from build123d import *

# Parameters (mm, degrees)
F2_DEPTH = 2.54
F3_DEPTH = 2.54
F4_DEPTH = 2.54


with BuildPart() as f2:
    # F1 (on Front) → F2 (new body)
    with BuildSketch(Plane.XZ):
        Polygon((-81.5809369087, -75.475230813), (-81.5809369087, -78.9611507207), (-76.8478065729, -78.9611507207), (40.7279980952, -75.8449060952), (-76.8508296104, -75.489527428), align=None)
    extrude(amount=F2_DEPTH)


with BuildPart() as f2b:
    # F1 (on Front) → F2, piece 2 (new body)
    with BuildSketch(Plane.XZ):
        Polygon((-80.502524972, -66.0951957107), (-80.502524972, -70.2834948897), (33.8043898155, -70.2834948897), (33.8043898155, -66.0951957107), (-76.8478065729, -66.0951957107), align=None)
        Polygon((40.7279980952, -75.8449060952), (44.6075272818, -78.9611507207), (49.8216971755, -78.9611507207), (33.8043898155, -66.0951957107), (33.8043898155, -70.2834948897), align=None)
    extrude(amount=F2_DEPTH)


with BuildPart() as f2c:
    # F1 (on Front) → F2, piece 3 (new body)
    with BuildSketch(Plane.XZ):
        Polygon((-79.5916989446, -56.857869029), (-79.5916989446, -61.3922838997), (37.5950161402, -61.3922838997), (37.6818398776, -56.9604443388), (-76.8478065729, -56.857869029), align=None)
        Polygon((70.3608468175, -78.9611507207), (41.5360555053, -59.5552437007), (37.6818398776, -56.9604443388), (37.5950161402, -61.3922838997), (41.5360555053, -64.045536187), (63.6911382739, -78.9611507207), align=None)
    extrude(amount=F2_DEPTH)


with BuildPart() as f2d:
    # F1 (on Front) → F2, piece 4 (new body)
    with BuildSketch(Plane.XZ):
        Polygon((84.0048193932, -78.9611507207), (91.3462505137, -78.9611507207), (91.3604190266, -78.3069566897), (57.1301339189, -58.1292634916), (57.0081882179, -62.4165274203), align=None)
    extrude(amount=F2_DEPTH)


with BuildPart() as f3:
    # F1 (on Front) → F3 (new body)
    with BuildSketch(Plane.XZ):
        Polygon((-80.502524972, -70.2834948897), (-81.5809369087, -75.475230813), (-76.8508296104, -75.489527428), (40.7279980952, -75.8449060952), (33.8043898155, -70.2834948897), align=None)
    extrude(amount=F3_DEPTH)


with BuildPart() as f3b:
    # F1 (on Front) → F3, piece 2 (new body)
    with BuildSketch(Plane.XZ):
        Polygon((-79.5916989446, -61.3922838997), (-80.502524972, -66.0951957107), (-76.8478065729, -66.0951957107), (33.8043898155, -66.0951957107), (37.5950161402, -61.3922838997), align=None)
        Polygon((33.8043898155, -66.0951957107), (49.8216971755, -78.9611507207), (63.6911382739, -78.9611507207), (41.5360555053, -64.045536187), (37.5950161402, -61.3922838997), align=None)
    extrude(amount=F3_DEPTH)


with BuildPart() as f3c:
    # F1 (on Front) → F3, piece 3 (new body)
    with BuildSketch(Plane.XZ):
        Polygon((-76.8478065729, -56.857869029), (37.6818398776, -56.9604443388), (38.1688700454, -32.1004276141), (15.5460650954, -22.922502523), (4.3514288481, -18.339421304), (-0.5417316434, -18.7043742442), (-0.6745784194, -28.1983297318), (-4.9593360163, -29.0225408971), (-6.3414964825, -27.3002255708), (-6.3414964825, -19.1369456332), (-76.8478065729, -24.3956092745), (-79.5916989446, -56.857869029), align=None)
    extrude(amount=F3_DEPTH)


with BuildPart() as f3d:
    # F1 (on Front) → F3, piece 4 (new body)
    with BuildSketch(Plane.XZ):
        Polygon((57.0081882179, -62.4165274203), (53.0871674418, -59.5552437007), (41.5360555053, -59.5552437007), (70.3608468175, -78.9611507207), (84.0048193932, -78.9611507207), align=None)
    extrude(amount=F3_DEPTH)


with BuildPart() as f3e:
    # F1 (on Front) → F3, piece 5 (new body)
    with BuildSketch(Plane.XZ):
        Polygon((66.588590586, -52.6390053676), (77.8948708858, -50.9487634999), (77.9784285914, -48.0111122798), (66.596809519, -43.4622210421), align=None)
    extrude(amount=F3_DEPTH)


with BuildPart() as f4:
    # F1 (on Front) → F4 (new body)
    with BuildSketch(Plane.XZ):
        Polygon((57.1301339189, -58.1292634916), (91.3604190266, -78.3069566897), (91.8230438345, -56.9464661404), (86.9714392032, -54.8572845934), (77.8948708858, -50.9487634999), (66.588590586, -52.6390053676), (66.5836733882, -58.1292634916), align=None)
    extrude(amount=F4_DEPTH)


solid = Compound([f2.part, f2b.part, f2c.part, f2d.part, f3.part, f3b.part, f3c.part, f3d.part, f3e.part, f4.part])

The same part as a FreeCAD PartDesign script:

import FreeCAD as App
import Part
import Sketcher
Q = App.Units.Quantity


def add_polygon(sketch, points):
    """Adds a closed chain of lines whose ends are joined by coincident constraints."""
    first, n = sketch.GeometryCount, len(points)
    for a, b in zip(points, points[1:] + points[:1]):
        sketch.addGeometry(Part.LineSegment(App.Vector(*a, 0), App.Vector(*b, 0)), False)
    for i in range(n):
        sketch.addConstraint(Sketcher.Constraint("Coincident", first + i, 2, first + (i + 1) % n, 1))

doc = App.newDocument("Part")
body = doc.addObject("PartDesign::Body", "Body")

sketch1 = body.newObject("Sketcher::SketchObject", "Sketch")
sketch1.AttachmentSupport = (doc.getObject("XZ_Plane"), [""])
sketch1.MapMode = "FlatFace"
add_polygon(sketch1, [(-81.6, -75.5), (-81.6, -79), (-76.8, -79), (40.7, -75.8), (-76.9, -75.5)])
sketch1.addConstraint(Sketcher.Constraint("Vertical", 0))
sketch1.addConstraint(Sketcher.Constraint("Horizontal", 1))
sketch1.addConstraint(Sketcher.Constraint("Parallel", 3, 4))
sketch1.addConstraint(Sketcher.Constraint("DistanceX", 1, 1, 1, 2, 4.73313))
sketch1.addConstraint(Sketcher.Constraint("DistanceY", 0, 2, 0, 1, 3.48592))
sketch1.addConstraint(Sketcher.Constraint("DistanceX", -1, 1, 2, 2, 40.727998))
sketch1.addConstraint(Sketcher.Constraint("Distance", 4, 4.730129))
sketch1.addConstraint(Sketcher.Constraint("DistanceY", 0, 2, -1, 1, 78.961151))
sketch1.addConstraint(Sketcher.Constraint("DistanceX", 3, 2, -1, 1, 76.85083))
sketch1.addConstraint(Sketcher.Constraint("DistanceY", 2, 2, 3, 2, 0.355379))
pad1 = body.newObject("PartDesign::Pad", "Pad")
pad1.Profile = sketch1
pad1.Length = Q("0.1 in")
body2 = doc.addObject("PartDesign::Body", "Body001")

sketch2 = body2.newObject("Sketcher::SketchObject", "Sketch001")
sketch2.AttachmentSupport = (doc.getObject("XZ_Plane001"), [""])
sketch2.MapMode = "FlatFace"
add_polygon(sketch2, [(-80.5, -66.1), (-80.5, -70.3), (33.8, -70.3), (40.7, -75.8), (44.6, -79), (49.8, -79), (33.8, -66.1)])
sketch2.addConstraint(Sketcher.Constraint("Vertical", 0))
sketch2.addConstraint(Sketcher.Constraint("Horizontal", 1))
sketch2.addConstraint(Sketcher.Constraint("Horizontal", 4))
sketch2.addConstraint(Sketcher.Constraint("Horizontal", 6))
sketch2.addConstraint(Sketcher.Constraint("Parallel", 2, 3))
sketch2.addConstraint(Sketcher.Constraint("Parallel", 3, 5))
sketch2.addConstraint(Sketcher.Constraint("Vertical", 1, 2, 5, 2))
sketch2.addConstraint(Sketcher.Constraint("DistanceY", 0, 2, 0, 1, 4.188299))
sketch2.addConstraint(Sketcher.Constraint("DistanceX", 4, 1, 4, 2, 5.21417))
sketch2.addConstraint(Sketcher.Constraint("DistanceX", -1, 1, 2, 2, 40.727998))
sketch2.addConstraint(Sketcher.Constraint("DistanceX", 2, 2, 4, 2, 9.093699))
sketch2.addConstraint(Sketcher.Constraint("DistanceX", 1, 1, 1, 2, 114.306915))
sketch2.addConstraint(Sketcher.Constraint("DistanceX", -1, 1, 1, 2, 33.80439))
sketch2.addConstraint(Sketcher.Constraint("DistanceY", 3, 2, -1, 1, 78.961151))
pad2 = body2.newObject("PartDesign::Pad", "Pad001")
pad2.Profile = sketch2
pad2.Length = Q("0.1 in")
body3 = doc.addObject("PartDesign::Body", "Body002")

sketch3 = body3.newObject("Sketcher::SketchObject", "Sketch002")
sketch3.AttachmentSupport = (doc.getObject("XZ_Plane002"), [""])
sketch3.MapMode = "FlatFace"
add_polygon(sketch3, [(-79.6, -56.9), (-79.6, -61.4), (37.6, -61.4), (41.5, -64), (63.7, -79), (70.4, -79), (41.5, -59.6), (37.7, -57), (-76.8, -56.9)])
sketch3.addConstraint(Sketcher.Constraint("Vertical", 0))
sketch3.addConstraint(Sketcher.Constraint("Horizontal", 1))
sketch3.addConstraint(Sketcher.Constraint("Horizontal", 4))
sketch3.addConstraint(Sketcher.Constraint("Horizontal", 8))
sketch3.addConstraint(Sketcher.Constraint("Parallel", 2, 3))
sketch3.addConstraint(Sketcher.Constraint("Parallel", 3, 5))
sketch3.addConstraint(Sketcher.Constraint("Parallel", 5, 6))
sketch3.addConstraint(Sketcher.Constraint("Vertical", 2, 2, 5, 2))
sketch3.addConstraint(Sketcher.Constraint("DistanceX", 4, 1, 4, 2, 6.669709))
sketch3.addConstraint(Sketcher.Constraint("DistanceX", 0, 2, -1, 1, 79.591699))
sketch3.addConstraint(Sketcher.Constraint("DistanceY", 5, 2, 6, 2, 2.594799))
sketch3.addConstraint(Sketcher.Constraint("DistanceX", 6, 2, 3, 2, 26.009298))
sketch3.addConstraint(Sketcher.Constraint("Distance", 2, 4.750951))
sketch3.addConstraint(Sketcher.Constraint("DistanceX", 1, 1, 1, 2, 117.186715))
sketch3.addConstraint(Sketcher.Constraint("DistanceX", 8, 2, 8, 1, 2.743892))
sketch3.addConstraint(Sketcher.Constraint("DistanceY", 0, 2, 0, 1, 4.534415))
sketch3.addConstraint(Sketcher.Constraint("DistanceX", -1, 1, 3, 2, 63.691138))
sketch3.addConstraint(Sketcher.Constraint("DistanceY", 3, 2, -1, 1, 78.961151))
pad3 = body3.newObject("PartDesign::Pad", "Pad002")
pad3.Profile = sketch3
pad3.Length = Q("0.1 in")
body4 = doc.addObject("PartDesign::Body", "Body003")

sketch4 = body4.newObject("Sketcher::SketchObject", "Sketch003")
sketch4.AttachmentSupport = (doc.getObject("XZ_Plane003"), [""])
sketch4.MapMode = "FlatFace"
add_polygon(sketch4, [(84, -79), (91.3, -79), (91.4, -78.3), (57.1, -58.1), (57, -62.4)])
sketch4.addConstraint(Sketcher.Constraint("Horizontal", 0))
sketch4.addConstraint(Sketcher.Constraint("DistanceX", 0, 1, 0, 2, 7.341431))
sketch4.addConstraint(Sketcher.Constraint("DistanceX", 4, 2, 1, 2, 7.3556))
sketch4.addConstraint(Sketcher.Constraint("DistanceX", -1, 1, 0, 2, 91.346251))
sketch4.addConstraint(Sketcher.Constraint("DistanceY", 0, 2, -1, 1, 78.961151))
sketch4.addConstraint(Sketcher.Constraint("DistanceX", -1, 1, 3, 2, 57.008188))
sketch4.addConstraint(Sketcher.Constraint("DistanceY", 1, 2, 3, 2, 15.890429))
sketch4.addConstraint(Sketcher.Constraint("Distance", 1, 0.654347))
sketch4.addConstraint(Sketcher.Constraint("Distance", 2, 39.734767))
sketch4.addConstraint(Sketcher.Constraint("Distance", 3, 4.288998))
pad4 = body4.newObject("PartDesign::Pad", "Pad003")
pad4.Profile = sketch4
pad4.Length = Q("0.1 in")
body5 = doc.addObject("PartDesign::Body", "Body004")

sketch5 = body5.newObject("Sketcher::SketchObject", "Sketch004")
sketch5.AttachmentSupport = (doc.getObject("XZ_Plane004"), [""])
sketch5.MapMode = "FlatFace"
add_polygon(sketch5, [(-80.5, -70.3), (-81.6, -75.5), (-76.9, -75.5), (40.7, -75.8), (33.8, -70.3)])
sketch5.addConstraint(Sketcher.Constraint("Horizontal", 4))
sketch5.addConstraint(Sketcher.Constraint("Parallel", 1, 2))
sketch5.addConstraint(Sketcher.Constraint("DistanceX", -1, 1, 2, 2, 40.727998))
sketch5.addConstraint(Sketcher.Constraint("Distance", 1, 4.730129))
sketch5.addConstraint(Sketcher.Constraint("DistanceX", 4, 2, 4, 1, 114.306915))
sketch5.addConstraint(Sketcher.Constraint("DistanceY", 0, 2, -1, 1, 75.475231))
sketch5.addConstraint(Sketcher.Constraint("DistanceX", 1, 2, -1, 1, 76.85083))
sketch5.addConstraint(Sketcher.Constraint("DistanceX", -1, 1, 3, 2, 33.80439))
sketch5.addConstraint(Sketcher.Constraint("DistanceY", 2, 2, 1, 2, 0.355379))
sketch5.addConstraint(Sketcher.Constraint("DistanceY", 2, 2, 3, 2, 5.561411))
pad5 = body5.newObject("PartDesign::Pad", "Pad004")
pad5.Profile = sketch5
pad5.Length = Q("0.1 in")
body6 = doc.addObject("PartDesign::Body", "Body005")

sketch6 = body6.newObject("Sketcher::SketchObject", "Sketch005")
sketch6.AttachmentSupport = (doc.getObject("XZ_Plane005"), [""])
sketch6.MapMode = "FlatFace"
add_polygon(sketch6, [(-79.6, -61.4), (-80.5, -66.1), (33.8, -66.1), (49.8, -79), (63.7, -79), (41.5, -64), (37.6, -61.4)])
sketch6.addConstraint(Sketcher.Constraint("Horizontal", 1))
sketch6.addConstraint(Sketcher.Constraint("Horizontal", 3))
sketch6.addConstraint(Sketcher.Constraint("Horizontal", 6))
sketch6.addConstraint(Sketcher.Constraint("Parallel", 4, 5))
sketch6.addConstraint(Sketcher.Constraint("Distance", 0, 4.790301))
sketch6.addConstraint(Sketcher.Constraint("DistanceX", 3, 1, 3, 2, 13.869441))
sketch6.addConstraint(Sketcher.Constraint("DistanceX", 6, 2, -1, 1, 79.591699))
sketch6.addConstraint(Sketcher.Constraint("Distance", 5, 4.750951))
sketch6.addConstraint(Sketcher.Constraint("DistanceX", 1, 1, 1, 2, 114.306915))
sketch6.addConstraint(Sketcher.Constraint("DistanceX", 6, 2, 6, 1, 117.186715))
sketch6.addConstraint(Sketcher.Constraint("DistanceX", -1, 1, 1, 2, 33.80439))
sketch6.addConstraint(Sketcher.Constraint("DistanceY", 2, 2, -1, 1, 78.961151))
sketch6.addConstraint(Sketcher.Constraint("DistanceX", -1, 1, 3, 2, 63.691138))
sketch6.addConstraint(Sketcher.Constraint("DistanceY", 1, 2, 4, 2, 2.04966))
pad6 = body6.newObject("PartDesign::Pad", "Pad005")
pad6.Profile = sketch6
pad6.Length = Q("0.1 in")
body7 = doc.addObject("PartDesign::Body", "Body006")

sketch7 = body7.newObject("Sketcher::SketchObject", "Sketch006")
sketch7.AttachmentSupport = (doc.getObject("XZ_Plane006"), [""])
sketch7.MapMode = "FlatFace"
add_polygon(sketch7, [(-76.847807, -56.857869), (37.68184, -56.960444), (38.16887, -32.100428), (15.546065, -22.922503), (4.351429, -18.339421), (-0.541732, -18.704374), (-0.674578, -28.19833), (-4.959336, -29.022541), (-6.341496, -27.300226), (-6.341496, -19.136946), (-76.847807, -24.395609), (-79.591699, -56.857869)])
sketch7.addConstraint(Sketcher.Constraint("Vertical", 8))
sketch7.addConstraint(Sketcher.Constraint("Horizontal", 11))
sketch7.addConstraint(Sketcher.Constraint("DistanceY", 8, 1, 8, 2, 8.16328))
sketch7.addConstraint(Sketcher.Constraint("DistanceX", 10, 2, -1, 1, 79.591699))
sketch7.addConstraint(Sketcher.Constraint("DistanceX", 4, 2, 1, 2, 38.710602))
sketch7.addConstraint(Sketcher.Constraint("DistanceX", 6, 2, 2, 2, 20.505401))
sketch7.addConstraint(Sketcher.Constraint("Distance", 4, 4.906751))
sketch7.addConstraint(Sketcher.Constraint("Distance", 6, 4.36331))
sketch7.addConstraint(Sketcher.Constraint("DistanceX", 11, 1, 11, 2, 2.743892))
sketch7.addConstraint(Sketcher.Constraint("DistanceX", -1, 1, 0, 2, 37.68184))
sketch7.addConstraint(Sketcher.Constraint("DistanceX", -1, 1, 1, 2, 38.16887))
sketch7.addConstraint(Sketcher.Constraint("DistanceX", -1, 1, 3, 2, 4.351429))
sketch7.addConstraint(Sketcher.Constraint("DistanceY", 3, 2, -1, 1, 18.339421))
sketch7.addConstraint(Sketcher.Constraint("DistanceX", 5, 2, -1, 1, 0.674578))
sketch7.addConstraint(Sketcher.Constraint("DistanceY", 5, 2, -1, 1, 28.19833))
sketch7.addConstraint(Sketcher.Constraint("DistanceY", 6, 2, -1, 1, 29.022541))
sketch7.addConstraint(Sketcher.Constraint("DistanceY", 9, 2, -1, 1, 24.395609))
sketch7.addConstraint(Sketcher.Constraint("DistanceY", 10, 2, -1, 1, 56.857869))
sketch7.addConstraint(Sketcher.Constraint("DistanceY", 0, 2, 2, 2, 34.037942))
sketch7.addConstraint(Sketcher.Constraint("DistanceY", 2, 2, 3, 2, 4.583081))
sketch7.addConstraint(Sketcher.Constraint("DistanceX", 7, 2, 6, 2, 1.38216))
sketch7.addConstraint(Sketcher.Constraint("DistanceY", 7, 2, 4, 2, 8.595851))
sketch7.addConstraint(Sketcher.Constraint("DistanceX", 9, 2, 7, 2, 70.50631))
sketch7.addConstraint(Sketcher.Constraint("Distance", 1, 24.864787))
pad7 = body7.newObject("PartDesign::Pad", "Pad006")
pad7.Profile = sketch7
pad7.Length = Q("0.1 in")
body8 = doc.addObject("PartDesign::Body", "Body007")

sketch8 = body8.newObject("Sketcher::SketchObject", "Sketch007")
sketch8.AttachmentSupport = (doc.getObject("XZ_Plane007"), [""])
sketch8.MapMode = "FlatFace"
add_polygon(sketch8, [(57, -62.4), (53.1, -59.6), (41.5, -59.6), (70.4, -79), (84, -79)])
sketch8.addConstraint(Sketcher.Constraint("Horizontal", 1))
sketch8.addConstraint(Sketcher.Constraint("Horizontal", 3))
sketch8.addConstraint(Sketcher.Constraint("DistanceX", 1, 2, 1, 1, 11.551112))
sketch8.addConstraint(Sketcher.Constraint("DistanceX", 3, 1, 3, 2, 13.643973))
sketch8.addConstraint(Sketcher.Constraint("DistanceY", 2, 2, -1, 1, 78.961151))
sketch8.addConstraint(Sketcher.Constraint("DistanceX", -1, 1, 3, 2, 84.004819))
sketch8.addConstraint(Sketcher.Constraint("DistanceX", -1, 1, 4, 2, 57.008188))
sketch8.addConstraint(Sketcher.Constraint("DistanceX", 0, 2, 2, 2, 17.273679))
sketch8.addConstraint(Sketcher.Constraint("Distance", 0, 4.854003))
sketch8.addConstraint(Sketcher.Constraint("Distance", 2, 34.748494))
pad8 = body8.newObject("PartDesign::Pad", "Pad007")
pad8.Profile = sketch8
pad8.Length = Q("0.1 in")
body9 = doc.addObject("PartDesign::Body", "Body008")

sketch9 = body9.newObject("Sketcher::SketchObject", "Sketch008")
sketch9.AttachmentSupport = (doc.getObject("XZ_Plane008"), [""])
sketch9.MapMode = "FlatFace"
add_polygon(sketch9, [(66.6, -52.6), (77.9, -50.9), (78, -48), (66.6, -43.5)])
sketch9.addConstraint(Sketcher.Constraint("Distance", 1, 2.938839))
sketch9.addConstraint(Sketcher.Constraint("Distance", 3, 9.176788))
sketch9.addConstraint(Sketcher.Constraint("DistanceX", -1, 1, 0, 2, 77.894871))
sketch9.addConstraint(Sketcher.Constraint("DistanceX", -1, 1, 1, 2, 77.978429))
sketch9.addConstraint(Sketcher.Constraint("DistanceX", -1, 1, 2, 2, 66.59681))
sketch9.addConstraint(Sketcher.Constraint("DistanceY", 2, 2, -1, 1, 43.462221))
sketch9.addConstraint(Sketcher.Constraint("DistanceX", -1, 1, 3, 2, 66.588591))
sketch9.addConstraint(Sketcher.Constraint("DistanceY", 1, 2, 2, 2, 4.548891))
pad9 = body9.newObject("PartDesign::Pad", "Pad008")
pad9.Profile = sketch9
pad9.Length = Q("0.1 in")
body10 = doc.addObject("PartDesign::Body", "Body009")

sketch10 = body10.newObject("Sketcher::SketchObject", "Sketch009")
sketch10.AttachmentSupport = (doc.getObject("XZ_Plane009"), [""])
sketch10.MapMode = "FlatFace"
add_polygon(sketch10, [(57, -58), (91, -78), (92, -57), (78, -51), (67, -53), (67, -58)])
sketch10.addConstraint(Sketcher.Constraint("Horizontal", 5))
sketch10.addConstraint(Sketcher.Constraint("Distance", 1, 21.3655))
sketch10.addConstraint(Sketcher.Constraint("DistanceX", 5, 2, 5, 1, 9.453539))
sketch10.addConstraint(Sketcher.Constraint("DistanceY", 4, 2, 2, 2, 7.1805))
sketch10.addConstraint(Sketcher.Constraint("Distance", 4, 5.49026))
sketch10.addConstraint(Sketcher.Constraint("DistanceX", -1, 1, 0, 2, 91.360419))
sketch10.addConstraint(Sketcher.Constraint("DistanceX", -1, 1, 2, 2, 77.894871))
sketch10.addConstraint(Sketcher.Constraint("DistanceX", -1, 1, 3, 2, 66.588591))
sketch10.addConstraint(Sketcher.Constraint("DistanceY", 0, 2, 1, 2, 21.360491))
sketch10.addConstraint(Sketcher.Constraint("DistanceY", 1, 2, 3, 2, 4.307461))
sketch10.addConstraint(Sketcher.Constraint("DistanceX", 4, 2, 1, 2, 25.23937))
sketch10.addConstraint(Sketcher.Constraint("DistanceY", 0, 2, -1, 1, 78.306957))
pad10 = body10.newObject("PartDesign::Pad", "Pad009")
pad10.Profile = sketch10
pad10.Length = Q("0.1 in")

doc.recompute()
